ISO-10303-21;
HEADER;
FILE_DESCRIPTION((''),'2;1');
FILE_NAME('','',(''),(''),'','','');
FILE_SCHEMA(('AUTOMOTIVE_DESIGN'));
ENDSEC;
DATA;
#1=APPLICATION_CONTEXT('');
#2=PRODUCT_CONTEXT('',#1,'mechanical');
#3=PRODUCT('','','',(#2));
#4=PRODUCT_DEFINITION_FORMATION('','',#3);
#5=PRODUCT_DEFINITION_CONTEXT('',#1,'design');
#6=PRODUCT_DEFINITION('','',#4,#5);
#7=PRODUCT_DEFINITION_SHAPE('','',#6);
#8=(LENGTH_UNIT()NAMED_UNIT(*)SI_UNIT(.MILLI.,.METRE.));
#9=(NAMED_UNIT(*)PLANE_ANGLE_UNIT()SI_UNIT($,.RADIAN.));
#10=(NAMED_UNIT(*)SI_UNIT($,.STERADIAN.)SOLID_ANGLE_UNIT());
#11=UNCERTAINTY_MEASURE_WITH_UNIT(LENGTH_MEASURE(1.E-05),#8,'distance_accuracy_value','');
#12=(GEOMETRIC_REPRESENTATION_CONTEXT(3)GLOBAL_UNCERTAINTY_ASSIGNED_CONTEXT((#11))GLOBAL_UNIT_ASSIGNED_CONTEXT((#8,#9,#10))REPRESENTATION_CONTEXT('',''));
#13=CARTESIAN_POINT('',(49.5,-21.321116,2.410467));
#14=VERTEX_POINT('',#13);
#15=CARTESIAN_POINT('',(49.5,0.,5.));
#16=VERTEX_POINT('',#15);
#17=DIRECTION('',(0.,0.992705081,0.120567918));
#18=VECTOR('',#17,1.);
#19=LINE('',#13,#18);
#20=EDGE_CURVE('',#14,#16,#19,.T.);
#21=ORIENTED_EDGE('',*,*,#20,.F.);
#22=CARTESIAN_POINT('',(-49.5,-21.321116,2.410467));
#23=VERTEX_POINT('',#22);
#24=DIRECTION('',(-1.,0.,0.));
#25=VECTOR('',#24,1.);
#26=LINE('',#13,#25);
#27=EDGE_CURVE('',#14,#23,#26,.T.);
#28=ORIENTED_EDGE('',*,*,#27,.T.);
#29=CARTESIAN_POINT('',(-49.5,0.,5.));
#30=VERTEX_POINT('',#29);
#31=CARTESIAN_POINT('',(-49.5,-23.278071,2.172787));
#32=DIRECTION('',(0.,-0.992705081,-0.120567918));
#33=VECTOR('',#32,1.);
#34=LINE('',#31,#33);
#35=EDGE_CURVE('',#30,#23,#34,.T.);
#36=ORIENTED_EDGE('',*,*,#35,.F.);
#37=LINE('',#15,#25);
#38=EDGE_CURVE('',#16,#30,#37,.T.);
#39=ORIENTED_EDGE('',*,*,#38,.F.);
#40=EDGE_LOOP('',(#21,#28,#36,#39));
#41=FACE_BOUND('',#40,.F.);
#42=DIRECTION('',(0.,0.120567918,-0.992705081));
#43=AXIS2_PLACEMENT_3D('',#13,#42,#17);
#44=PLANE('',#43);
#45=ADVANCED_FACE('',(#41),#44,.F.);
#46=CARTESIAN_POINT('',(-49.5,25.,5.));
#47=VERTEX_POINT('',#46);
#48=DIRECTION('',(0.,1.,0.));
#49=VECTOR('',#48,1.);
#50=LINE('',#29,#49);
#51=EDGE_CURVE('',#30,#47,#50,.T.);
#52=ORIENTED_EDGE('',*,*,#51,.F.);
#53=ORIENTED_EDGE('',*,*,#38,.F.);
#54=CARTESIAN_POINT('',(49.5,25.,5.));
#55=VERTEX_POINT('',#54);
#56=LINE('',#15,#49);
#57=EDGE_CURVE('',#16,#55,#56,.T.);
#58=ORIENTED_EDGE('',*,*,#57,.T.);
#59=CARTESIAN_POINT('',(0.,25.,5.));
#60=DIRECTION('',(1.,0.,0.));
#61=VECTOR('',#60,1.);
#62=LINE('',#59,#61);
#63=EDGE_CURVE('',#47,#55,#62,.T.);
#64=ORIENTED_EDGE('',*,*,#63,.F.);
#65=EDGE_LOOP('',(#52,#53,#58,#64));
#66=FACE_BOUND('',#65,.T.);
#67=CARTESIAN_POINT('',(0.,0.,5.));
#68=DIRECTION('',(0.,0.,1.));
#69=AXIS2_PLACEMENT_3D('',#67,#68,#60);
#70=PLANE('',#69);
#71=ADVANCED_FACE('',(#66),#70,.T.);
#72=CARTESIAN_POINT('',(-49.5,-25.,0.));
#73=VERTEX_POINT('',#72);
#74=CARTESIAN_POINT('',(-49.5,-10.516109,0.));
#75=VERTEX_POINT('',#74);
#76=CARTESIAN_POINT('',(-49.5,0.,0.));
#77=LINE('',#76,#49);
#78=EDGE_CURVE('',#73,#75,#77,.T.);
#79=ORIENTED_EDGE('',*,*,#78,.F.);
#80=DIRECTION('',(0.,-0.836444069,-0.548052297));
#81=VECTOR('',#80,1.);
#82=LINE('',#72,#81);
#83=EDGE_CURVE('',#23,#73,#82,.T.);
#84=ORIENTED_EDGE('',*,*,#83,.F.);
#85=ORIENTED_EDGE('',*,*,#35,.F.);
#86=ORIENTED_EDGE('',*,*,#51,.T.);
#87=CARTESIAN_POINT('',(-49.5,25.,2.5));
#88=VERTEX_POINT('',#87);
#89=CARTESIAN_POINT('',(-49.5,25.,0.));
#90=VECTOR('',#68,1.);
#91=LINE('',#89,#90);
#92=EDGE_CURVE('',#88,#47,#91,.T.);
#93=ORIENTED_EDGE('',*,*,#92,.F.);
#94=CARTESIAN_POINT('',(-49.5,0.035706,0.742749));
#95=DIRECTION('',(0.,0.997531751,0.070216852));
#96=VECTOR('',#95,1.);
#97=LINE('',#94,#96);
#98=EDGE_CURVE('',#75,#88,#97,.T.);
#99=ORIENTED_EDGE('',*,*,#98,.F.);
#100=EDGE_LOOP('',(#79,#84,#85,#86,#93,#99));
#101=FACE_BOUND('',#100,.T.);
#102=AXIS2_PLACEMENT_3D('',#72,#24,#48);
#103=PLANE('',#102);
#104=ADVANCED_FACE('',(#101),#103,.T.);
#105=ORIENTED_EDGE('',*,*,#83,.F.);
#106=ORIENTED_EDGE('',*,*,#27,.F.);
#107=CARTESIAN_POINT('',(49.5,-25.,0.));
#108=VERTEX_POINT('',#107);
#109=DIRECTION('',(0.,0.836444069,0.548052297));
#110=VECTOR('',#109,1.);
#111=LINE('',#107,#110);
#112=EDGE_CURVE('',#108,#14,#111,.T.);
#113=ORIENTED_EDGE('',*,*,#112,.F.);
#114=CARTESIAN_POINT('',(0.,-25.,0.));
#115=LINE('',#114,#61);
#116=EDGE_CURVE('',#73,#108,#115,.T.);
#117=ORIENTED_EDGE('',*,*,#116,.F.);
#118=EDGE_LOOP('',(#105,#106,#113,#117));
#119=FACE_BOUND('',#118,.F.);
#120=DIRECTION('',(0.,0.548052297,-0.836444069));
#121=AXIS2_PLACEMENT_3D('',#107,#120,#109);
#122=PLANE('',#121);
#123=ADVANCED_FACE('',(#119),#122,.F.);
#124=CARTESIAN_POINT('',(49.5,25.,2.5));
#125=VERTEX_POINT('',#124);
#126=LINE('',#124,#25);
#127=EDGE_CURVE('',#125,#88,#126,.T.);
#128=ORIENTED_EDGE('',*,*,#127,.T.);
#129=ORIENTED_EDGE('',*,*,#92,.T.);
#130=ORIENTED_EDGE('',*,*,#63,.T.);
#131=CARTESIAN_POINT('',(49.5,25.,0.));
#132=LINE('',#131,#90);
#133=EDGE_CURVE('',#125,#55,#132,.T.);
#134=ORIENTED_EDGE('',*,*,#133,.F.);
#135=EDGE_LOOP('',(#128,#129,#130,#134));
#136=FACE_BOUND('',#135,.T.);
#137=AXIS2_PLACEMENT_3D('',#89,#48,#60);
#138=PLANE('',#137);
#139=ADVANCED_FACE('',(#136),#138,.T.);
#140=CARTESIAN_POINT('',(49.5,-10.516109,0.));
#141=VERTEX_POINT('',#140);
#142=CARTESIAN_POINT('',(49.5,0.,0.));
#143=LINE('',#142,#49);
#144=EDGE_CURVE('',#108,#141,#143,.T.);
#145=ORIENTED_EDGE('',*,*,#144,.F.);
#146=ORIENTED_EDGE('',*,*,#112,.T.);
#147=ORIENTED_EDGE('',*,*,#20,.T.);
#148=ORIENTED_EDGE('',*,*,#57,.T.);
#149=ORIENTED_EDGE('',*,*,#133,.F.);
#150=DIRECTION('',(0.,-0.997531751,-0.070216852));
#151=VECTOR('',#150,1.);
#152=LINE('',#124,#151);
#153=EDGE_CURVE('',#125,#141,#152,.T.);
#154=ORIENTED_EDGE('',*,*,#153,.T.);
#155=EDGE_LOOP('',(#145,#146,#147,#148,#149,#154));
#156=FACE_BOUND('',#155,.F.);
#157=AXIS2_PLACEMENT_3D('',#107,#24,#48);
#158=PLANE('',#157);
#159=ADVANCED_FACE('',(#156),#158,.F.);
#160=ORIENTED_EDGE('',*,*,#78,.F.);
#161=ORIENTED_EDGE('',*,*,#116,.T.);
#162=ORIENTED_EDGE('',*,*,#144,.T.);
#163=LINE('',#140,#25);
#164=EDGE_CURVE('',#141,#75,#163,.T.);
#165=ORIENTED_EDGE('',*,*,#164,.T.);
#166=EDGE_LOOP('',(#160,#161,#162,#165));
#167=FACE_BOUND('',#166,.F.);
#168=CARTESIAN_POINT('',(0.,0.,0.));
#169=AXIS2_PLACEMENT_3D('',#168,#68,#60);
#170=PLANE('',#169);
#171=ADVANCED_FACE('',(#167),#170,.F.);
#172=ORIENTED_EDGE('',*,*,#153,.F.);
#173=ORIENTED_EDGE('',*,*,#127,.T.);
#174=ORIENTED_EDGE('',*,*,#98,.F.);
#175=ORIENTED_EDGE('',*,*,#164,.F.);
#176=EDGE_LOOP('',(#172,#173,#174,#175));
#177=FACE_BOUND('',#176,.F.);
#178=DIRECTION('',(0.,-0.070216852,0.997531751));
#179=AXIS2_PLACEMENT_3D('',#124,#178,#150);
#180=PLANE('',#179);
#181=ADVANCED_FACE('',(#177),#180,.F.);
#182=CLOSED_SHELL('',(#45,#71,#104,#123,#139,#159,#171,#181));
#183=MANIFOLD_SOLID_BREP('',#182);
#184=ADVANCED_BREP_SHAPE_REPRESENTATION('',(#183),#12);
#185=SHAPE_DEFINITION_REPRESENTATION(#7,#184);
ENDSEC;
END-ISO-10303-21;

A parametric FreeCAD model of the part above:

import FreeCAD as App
import Part
import Sketcher

V = App.Vector
Q = App.Units.Quantity

doc = App.newDocument("Part")
body = doc.addObject("PartDesign::Body", "Body")

sketch1 = doc.addObject("Sketcher::SketchObject", "Sketch")
body.addObject(sketch1)
sketch1.AttachmentSupport = (doc.XY_Plane, [""])
sketch1.MapMode = "FlatFace"
sketch1.addGeometry(Part.LineSegment(V(-49.5, 25, 0), V(-49.5, -25, 0)), False)
sketch1.addGeometry(Part.LineSegment(V(-49.5, -25, 0), V(49.5, -25, 0)), False)
sketch1.addGeometry(Part.LineSegment(V(49.5, -25, 0), V(49.5, 25, 0)), False)
sketch1.addGeometry(Part.LineSegment(V(49.5, 25, 0), V(-49.5, 25, 0)), False)
sketch1.addConstraint(Sketcher.Constraint("Coincident", 0, 2, 1, 1))
sketch1.addConstraint(Sketcher.Constraint("Coincident", 1, 2, 2, 1))
sketch1.addConstraint(Sketcher.Constraint("Coincident", 2, 2, 3, 1))
sketch1.addConstraint(Sketcher.Constraint("Coincident", 3, 2, 0, 1))
sketch1.addConstraint(Sketcher.Constraint("Vertical", 0))
sketch1.addConstraint(Sketcher.Constraint("Horizontal", 1))
sketch1.addConstraint(Sketcher.Constraint("Vertical", 2))
sketch1.addConstraint(Sketcher.Constraint("Horizontal", 3))
sketch1.addConstraint(Sketcher.Constraint("Symmetric", 0, 2, 2, 2, -1, 1))
sketch1.addConstraint(Sketcher.Constraint("DistanceX", 1, 1, 1, 2, Q("99 mm")))
sketch1.addConstraint(Sketcher.Constraint("DistanceY", 0, 2, 0, 1, Q("50 mm")))
pad1 = doc.addObject("PartDesign::Pad", "Pad")
body.addObject(pad1)
pad1.Profile = sketch1
pad1.Length = 5

sketch2 = doc.addObject("Sketcher::SketchObject", "Sketch001")
body.addObject(sketch2)
sketch2.AttachmentSupport = (doc.YZ_Plane, [""])
sketch2.MapMode = "FlatFace"
sketch2.AttachmentOffset = App.Placement(V(0, 0, 49.5), App.Rotation())
sketch2.addGeometry(Part.LineSegment(V(-21.321116, 2.410467, 0), V(0, 5, 0)), False)
sketch2.addGeometry(Part.LineSegment(V(0, 5, 0), V(-25, 5, 0)), False)
sketch2.addGeometry(Part.LineSegment(V(-25, 5, 0), V(-25, 0, 0)), False)
sketch2.addGeometry(Part.LineSegment(V(-25, 0, 0), V(-21.321116, 2.410467, 0)), False)
sketch2.addConstraint(Sketcher.Constraint("Coincident", 0, 2, 1, 1))
sketch2.addConstraint(Sketcher.Constraint("Coincident", 1, 2, 2, 1))
sketch2.addConstraint(Sketcher.Constraint("Coincident", 2, 2, 3, 1))
sketch2.addConstraint(Sketcher.Constraint("Coincident", 3, 2, 0, 1))
sketch2.addConstraint(Sketcher.Constraint("Horizontal", 1))
sketch2.addConstraint(Sketcher.Constraint("Vertical", 2))
sketch2.addConstraint(Sketcher.Constraint("PointOnObject", 0, 2, -2))
sketch2.addConstraint(Sketcher.Constraint("PointOnObject", 2, 2, -1))
sketch2.addConstraint(Sketcher.Constraint("DistanceX", 1, 2, 1, 1, Q("25 mm")))
sketch2.addConstraint(Sketcher.Constraint("DistanceY", 2, 2, 2, 1, Q("5 mm")))
sketch2.addConstraint(Sketcher.Constraint("Distance", 0, Q("21.477795 mm")))
sketch2.addConstraint(Sketcher.Constraint("Distance", 3, Q("4.398243 mm")))
pocket1 = doc.addObject("PartDesign::Pocket", "Pocket")
body.addObject(pocket1)
pocket1.Profile = sketch2
pocket1.Length = 127

sketch3 = doc.addObject("Sketcher::SketchObject", "Sketch002")
body.addObject(sketch3)
sketch3.AttachmentSupport = (doc.YZ_Plane, [""])
sketch3.MapMode = "FlatFace"
sketch3.AttachmentOffset = App.Placement(V(0, 0, 49.5), App.Rotation())
sketch3.addGeometry(Part.LineSegment(V(25, 2.5, 0), V(-10.516109, 0, 0)), False)
sketch3.addGeometry(Part.LineSegment(V(-10.516109, 0, 0), V(25, 0, 0)), False)
sketch3.addGeometry(Part.LineSegment(V(25, 0, 0), V(25, 2.5, 0)), False)
sketch3.addConstraint(Sketcher.Constraint("Coincident", 0, 2, 1, 1))
sketch3.addConstraint(Sketcher.Constraint("Coincident", 1, 2, 2, 1))
sketch3.addConstraint(Sketcher.Constraint("Coincident", 2, 2, 0, 1))
sketch3.addConstraint(Sketcher.Constraint("Horizontal", 1))
sketch3.addConstraint(Sketcher.Constraint("Vertical", 2))
sketch3.addConstraint(Sketcher.Constraint("PointOnObject", 0, 2, -1))
sketch3.addConstraint(Sketcher.Constraint("DistanceY", 2, 1, 2, 2, Q("2.5 mm")))
sketch3.addConstraint(Sketcher.Constraint("DistanceX", -1, 1, 1, 2, Q("25 mm")))
sketch3.addConstraint(Sketcher.Constraint("DistanceX", 1, 1, 1, 2, Q("35.516109 mm")))
pocket2 = doc.addObject("PartDesign::Pocket", "Pocket001")
body.addObject(pocket2)
pocket2.Profile = sketch3
pocket2.Length = 152.4

doc.recompute()
